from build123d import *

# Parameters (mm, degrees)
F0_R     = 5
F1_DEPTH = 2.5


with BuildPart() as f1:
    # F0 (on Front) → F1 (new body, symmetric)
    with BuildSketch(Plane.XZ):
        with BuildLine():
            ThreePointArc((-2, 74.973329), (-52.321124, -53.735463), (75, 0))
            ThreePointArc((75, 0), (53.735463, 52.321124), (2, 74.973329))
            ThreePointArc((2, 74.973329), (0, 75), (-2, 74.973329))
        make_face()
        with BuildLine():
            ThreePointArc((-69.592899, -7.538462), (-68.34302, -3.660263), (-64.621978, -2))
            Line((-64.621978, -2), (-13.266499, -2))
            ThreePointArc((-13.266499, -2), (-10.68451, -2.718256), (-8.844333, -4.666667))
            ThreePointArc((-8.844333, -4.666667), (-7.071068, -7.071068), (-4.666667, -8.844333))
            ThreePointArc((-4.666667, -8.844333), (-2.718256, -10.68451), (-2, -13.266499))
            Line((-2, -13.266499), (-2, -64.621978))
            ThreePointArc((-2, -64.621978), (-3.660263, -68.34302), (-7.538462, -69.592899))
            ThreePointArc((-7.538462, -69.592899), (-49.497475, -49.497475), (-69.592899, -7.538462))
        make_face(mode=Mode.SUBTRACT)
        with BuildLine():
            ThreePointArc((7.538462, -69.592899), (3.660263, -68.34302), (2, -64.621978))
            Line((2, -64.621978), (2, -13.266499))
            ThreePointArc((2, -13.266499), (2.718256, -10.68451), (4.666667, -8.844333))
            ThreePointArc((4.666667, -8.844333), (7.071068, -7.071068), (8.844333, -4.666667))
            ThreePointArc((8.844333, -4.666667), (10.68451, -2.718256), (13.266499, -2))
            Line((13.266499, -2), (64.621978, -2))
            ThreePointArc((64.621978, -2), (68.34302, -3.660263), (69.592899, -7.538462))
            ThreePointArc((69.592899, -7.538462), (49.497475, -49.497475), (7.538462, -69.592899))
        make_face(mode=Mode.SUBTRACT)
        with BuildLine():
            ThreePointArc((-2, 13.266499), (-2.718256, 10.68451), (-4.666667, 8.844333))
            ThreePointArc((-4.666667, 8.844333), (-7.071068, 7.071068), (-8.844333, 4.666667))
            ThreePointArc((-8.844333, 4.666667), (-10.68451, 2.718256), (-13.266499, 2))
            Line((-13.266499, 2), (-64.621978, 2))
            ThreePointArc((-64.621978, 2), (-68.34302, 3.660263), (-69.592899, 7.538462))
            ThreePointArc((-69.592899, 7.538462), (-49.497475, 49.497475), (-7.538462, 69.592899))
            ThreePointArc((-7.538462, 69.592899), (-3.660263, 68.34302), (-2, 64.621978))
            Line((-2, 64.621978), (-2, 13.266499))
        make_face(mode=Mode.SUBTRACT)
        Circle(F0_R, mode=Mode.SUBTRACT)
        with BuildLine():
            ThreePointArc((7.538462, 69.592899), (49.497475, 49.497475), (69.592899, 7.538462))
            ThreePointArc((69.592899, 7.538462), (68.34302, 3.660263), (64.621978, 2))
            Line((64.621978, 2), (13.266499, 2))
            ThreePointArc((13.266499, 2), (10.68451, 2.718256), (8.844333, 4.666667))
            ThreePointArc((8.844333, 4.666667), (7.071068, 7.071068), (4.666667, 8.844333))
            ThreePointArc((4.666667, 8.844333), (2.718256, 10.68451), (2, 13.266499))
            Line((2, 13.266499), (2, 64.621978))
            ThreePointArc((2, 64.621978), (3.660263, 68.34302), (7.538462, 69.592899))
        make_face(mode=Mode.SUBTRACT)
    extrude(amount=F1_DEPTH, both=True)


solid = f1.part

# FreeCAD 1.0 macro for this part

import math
import FreeCAD as App
import Part
import Sketcher
from FreeCAD import Vector
Q = App.Units.Quantity

doc = App.newDocument("Part")
body = doc.addObject("PartDesign::Body", "Body")

# Sketch on XZ plane
sketch1 = body.newObject("Sketcher::SketchObject", "Sketch")
sketch1.AttachmentSupport = (doc.getObject("XZ_Plane"), [""])
sketch1.MapMode = "FlatFace"
sketch1.addGeometry([
    Part.ArcOfCircle(Part.Circle(Vector(0, 0, 0), Vector(0, 0, 1), 75), math.radians(91.528068), math.radians(360)),  # 0
    Part.ArcOfCircle(Part.Circle(Vector(-0.000001, 0, 0), Vector(0, 0, 1), 75.000001), math.radians(0), math.radians(88.471931)),  # 1
    Part.ArcOfCircle(Part.Circle(Vector(0, -0.00115, 0), Vector(0, 0, 1), 75.00115), math.radians(88.471955), math.radians(91.528045)),  # 2
    Part.ArcOfCircle(Part.Circle(Vector(-0.000001, -0.000001, 0), Vector(0, 0, 1), 69.999998), math.radians(-173.817696), math.radians(-96.182304)),  # 3
    Part.ArcOfCircle(Part.Circle(Vector(-64.621977, -7, 0), Vector(0, 0, 1), 5), math.radians(90.000006), math.radians(186.182307)),  # 4
    Part.LineSegment(Vector(-64.621978, -2, 0), Vector(-13.266499, -2, 0)),  # 5
    Part.ArcOfCircle(Part.Circle(Vector(-13.266499, -6.999999, 0), Vector(0, 0, 1), 4.999999), math.radians(27.818128), math.radians(90.000001)),  # 6
    Part.ArcOfCircle(Part.Circle(Vector(0.000001, 0.000001, 0), Vector(0, 0, 1), 10.000002), math.radians(-152.181856), math.radians(-117.818144)),  # 7
    Part.ArcOfCircle(Part.Circle(Vector(-6.999999, -13.266499, 0), Vector(0, 0, 1), 4.999999), math.radians(-0.000001), math.radians(62.181872)),  # 8
    Part.LineSegment(Vector(-2, -13.266499, 0), Vector(-2, -64.621978, 0)),  # 9
    Part.ArcOfCircle(Part.Circle(Vector(-7, -64.621977, 0), Vector(0, 0, 1), 5), math.radians(-96.182307), math.radians(-0.000006)),  # 10
    Part.ArcOfCircle(Part.Circle(Vector(0.000001, -0.000001, 0), Vector(0, 0, 1), 69.999998), math.radians(-83.817696), math.radians(-6.182304)),  # 11
    Part.ArcOfCircle(Part.Circle(Vector(7, -64.621977, 0), Vector(0, 0, 1), 5), math.radians(-179.999994), math.radians(-83.817693)),  # 12
    Part.LineSegment(Vector(2, -64.621978, 0), Vector(2, -13.266499, 0)),  # 13
    Part.ArcOfCircle(Part.Circle(Vector(6.999999, -13.266499, 0), Vector(0, 0, 1), 4.999999), math.radians(117.818128), math.radians(180.000001)),  # 14
    Part.ArcOfCircle(Part.Circle(Vector(-0.000001, 0.000001, 0), Vector(0, 0, 1), 10.000002), math.radians(-62.181856), math.radians(-27.818144)),  # 15
    Part.ArcOfCircle(Part.Circle(Vector(13.266499, -6.999999, 0), Vector(0, 0, 1), 4.999999), math.radians(89.999999), math.radians(152.181872)),  # 16
    Part.LineSegment(Vector(13.266499, -2, 0), Vector(64.621978, -2, 0)),  # 17
    Part.ArcOfCircle(Part.Circle(Vector(64.621977, -7, 0), Vector(0, 0, 1), 5), math.radians(-6.182307), math.radians(89.999994)),  # 18
    Part.LineSegment(Vector(-2, 64.621978, 0), Vector(-2, 13.266499, 0)),  # 19
    Part.ArcOfCircle(Part.Circle(Vector(-6.999999, 13.266499, 0), Vector(0, 0, 1), 4.999999), math.radians(-62.181872), math.radians(0.000001)),  # 20
    Part.ArcOfCircle(Part.Circle(Vector(0.000001, -0.000001, 0), Vector(0, 0, 1), 10.000002), math.radians(117.818144), math.radians(152.181856)),  # 21
    Part.ArcOfCircle(Part.Circle(Vector(-13.266499, 6.999999, 0), Vector(0, 0, 1), 4.999999), math.radians(-90.000001), math.radians(-27.818128)),  # 22
    Part.LineSegment(Vector(-13.266499, 2, 0), Vector(-64.621978, 2, 0)),  # 23
    Part.ArcOfCircle(Part.Circle(Vector(-64.621977, 7, 0), Vector(0, 0, 1), 5), math.radians(173.817693), math.radians(269.999994)),  # 24
    Part.ArcOfCircle(Part.Circle(Vector(-0.000001, 0.000001, 0), Vector(0, 0, 1), 69.999998), math.radians(96.182304), math.radians(173.817696)),  # 25
    Part.ArcOfCircle(Part.Circle(Vector(-7, 64.621977, 0), Vector(0, 0, 1), 5), math.radians(0.000006), math.radians(96.182307)),  # 26
    Part.Circle(Vector(0, 0, 0), Vector(0, 0, 1), 5),  # 27
    Part.ArcOfCircle(Part.Circle(Vector(7, 64.621977, 0), Vector(0, 0, 1), 5), math.radians(83.817693), math.radians(179.999994)),  # 28
    Part.ArcOfCircle(Part.Circle(Vector(0.000001, 0.000001, 0), Vector(0, 0, 1), 69.999998), math.radians(6.182304), math.radians(83.817696)),  # 29
    Part.ArcOfCircle(Part.Circle(Vector(64.621977, 7, 0), Vector(0, 0, 1), 5), math.radians(-89.999994), math.radians(6.182307)),  # 30
    Part.LineSegment(Vector(64.621978, 2, 0), Vector(13.266499, 2, 0)),  # 31
    Part.ArcOfCircle(Part.Circle(Vector(13.266499, 6.999999, 0), Vector(0, 0, 1), 4.999999), math.radians(-152.181872), math.radians(-89.999999)),  # 32
    Part.ArcOfCircle(Part.Circle(Vector(-0.000001, -0.000001, 0), Vector(0, 0, 1), 10.000002), math.radians(27.818144), math.radians(62.181856)),  # 33
    Part.ArcOfCircle(Part.Circle(Vector(6.999999, 13.266499, 0), Vector(0, 0, 1), 4.999999), math.radians(179.999999), math.radians(242.181872)),  # 34
    Part.LineSegment(Vector(2, 13.266499, 0), Vector(2, 64.621978, 0)),  # 35
], False)
sketch1.addConstraint([
    Sketcher.Constraint("Coincident", 0, 2, 1, 1),
    Sketcher.Constraint("Coincident", 1, 2, 2, 1),
    Sketcher.Constraint("Coincident", 2, 2, 0, 1),
    Sketcher.Constraint("Coincident", 3, 1, 4, 2),
    Sketcher.Constraint("Coincident", 4, 1, 5, 1),
    Sketcher.Constraint("Coincident", 5, 2, 6, 2),
    Sketcher.Constraint("Coincident", 6, 1, 7, 1),
    Sketcher.Constraint("Coincident", 7, 2, 8, 2),
    Sketcher.Constraint("Coincident", 8, 1, 9, 1),
    Sketcher.Constraint("Coincident", 9, 2, 10, 2),
    Sketcher.Constraint("Coincident", 10, 1, 3, 2),
    Sketcher.Constraint("Coincident", 11, 1, 12, 2),
    Sketcher.Constraint("Coincident", 12, 1, 13, 1),
    Sketcher.Constraint("Coincident", 13, 2, 14, 2),
    Sketcher.Constraint("Coincident", 14, 1, 15, 1),
    Sketcher.Constraint("Coincident", 15, 2, 16, 2),
    Sketcher.Constraint("Coincident", 16, 1, 17, 1),
    Sketcher.Constraint("Coincident", 17, 2, 18, 2),
    Sketcher.Constraint("Coincident", 18, 1, 11, 2),
    Sketcher.Constraint("Coincident", 19, 2, 20, 2),
    Sketcher.Constraint("Coincident", 20, 1, 21, 1),
    Sketcher.Constraint("Coincident", 21, 2, 22, 2),
    Sketcher.Constraint("Coincident", 22, 1, 23, 1),
    Sketcher.Constraint("Coincident", 23, 2, 24, 2),
    Sketcher.Constraint("Coincident", 24, 1, 25, 2),
    Sketcher.Constraint("Coincident", 25, 1, 26, 2),
    Sketcher.Constraint("Coincident", 26, 1, 19, 1),
    Sketcher.Constraint("Coincident", 28, 1, 29, 2),
    Sketcher.Constraint("Coincident", 29, 1, 30, 2),
    Sketcher.Constraint("Coincident", 30, 1, 31, 1),
    Sketcher.Constraint("Coincident", 31, 2, 32, 2),
    Sketcher.Constraint("Coincident", 32, 1, 33, 1),
    Sketcher.Constraint("Coincident", 33, 2, 34, 2),
    Sketcher.Constraint("Coincident", 34, 1, 35, 1),
    Sketcher.Constraint("Coincident", 35, 2, 28, 2),
    Sketcher.Constraint("Horizontal", 5),
    Sketcher.Constraint("Vertical", 9),
    Sketcher.Constraint("Vertical", 13),
    Sketcher.Constraint("Horizontal", 17),
    Sketcher.Constraint("Vertical", 19),
    Sketcher.Constraint("Horizontal", 23),
    Sketcher.Constraint("Horizontal", 31),
    Sketcher.Constraint("Vertical", 35),
    Sketcher.Constraint("Coincident", 0, 3, -1, 1),
    Sketcher.Constraint("Coincident", 1, 3, -1, 1),
    Sketcher.Constraint("Coincident", 3, 3, -1, 1),
    Sketcher.Constraint("Coincident", 7, 3, -1, 1),
    Sketcher.Constraint("Coincident", 11, 3, -1, 1),
    Sketcher.Constraint("Coincident", 15, 3, -1, 1),
    Sketcher.Constraint("Coincident", 21, 3, -1, 1),
    Sketcher.Constraint("Coincident", 25, 3, -1, 1),
    Sketcher.Constraint("Coincident", 27, 3, -1, 1),
    Sketcher.Constraint("Coincident", 29, 3, -1, 1),
    Sketcher.Constraint("Coincident", 33, 3, -1, 1),
    Sketcher.Constraint("PointOnObject", 0, 2, -1),
    Sketcher.Constraint("Diameter", 27, Q("10 mm")),
    Sketcher.Constraint("Radius", 0, Q("75 mm")),
    Sketcher.Constraint("Radius", 3, Q("69.999998 mm")),
    Sketcher.Constraint("Radius", 4, Q("5 mm")),
    Sketcher.Constraint("Radius", 6, Q("4.999999 mm")),
    Sketcher.Constraint("Radius", 8, Q("4.999999 mm")),
    Sketcher.Constraint("Radius", 10, Q("5 mm")),
    Sketcher.Constraint("Radius", 11, Q("69.999998 mm")),
    Sketcher.Constraint("Radius", 12, Q("5 mm")),
    Sketcher.Constraint("Radius", 14, Q("4.999999 mm")),
    Sketcher.Constraint("Radius", 16, Q("4.999999 mm")),
    Sketcher.Constraint("Radius", 18, Q("5 mm")),
    Sketcher.Constraint("Radius", 20, Q("4.999999 mm")),
    Sketcher.Constraint("Radius", 22, Q("4.999999 mm")),
    Sketcher.Constraint("Radius", 24, Q("5 mm")),
    Sketcher.Constraint("Radius", 25, Q("69.999998 mm")),
    Sketcher.Constraint("Radius", 26, Q("5 mm")),
    Sketcher.Constraint("Radius", 28, Q("5 mm")),
    Sketcher.Constraint("Radius", 29, Q("69.999998 mm")),
    Sketcher.Constraint("Radius", 30, Q("5 mm")),
    Sketcher.Constraint("Radius", 32, Q("4.999999 mm")),
    Sketcher.Constraint("Radius", 34, Q("4.999999 mm")),
    Sketcher.Constraint("DistanceY", 4, 3, -1, 1, Q("7 mm")),
    Sketcher.Constraint("DistanceX", 8, 3, -1, 1, Q("6.999999 mm")),
    Sketcher.Constraint("DistanceX", -1, 1, 12, 3, Q("7 mm")),
    Sketcher.Constraint("DistanceY", 16, 3, -1, 1, Q("6.999999 mm")),
    Sketcher.Constraint("DistanceX", 20, 3, -1, 1, Q("6.999999 mm")),
    Sketcher.Constraint("DistanceY", -1, 1, 22, 3, Q("6.999999 mm")),
    Sketcher.Constraint("DistanceX", -1, 1, 28, 3, Q("7 mm")),
    Sketcher.Constraint("DistanceY", -1, 1, 30, 3, Q("7 mm")),
    Sketcher.Constraint("DistanceX", -1, 1, 1, 2, Q("2 mm")),
    Sketcher.Constraint("DistanceX", 2, 2, -1, 1, Q("2 mm")),
    Sketcher.Constraint("Radius", 2, Q("75.00115 mm")),
    Sketcher.Constraint("Radius", 7, Q("10.000002 mm")),
    Sketcher.Constraint("Radius", 15, Q("10.000002 mm")),
    Sketcher.Constraint("Radius", 21, Q("10.000002 mm")),
    Sketcher.Constraint("Radius", 33, Q("10.000002 mm")),
    Sketcher.Constraint("DistanceX", 5, 1, 5, 2, Q("51.355479 mm")),
    Sketcher.Constraint("DistanceX", 17, 1, 17, 2, Q("51.355479 mm")),
    Sketcher.Constraint("DistanceX", 23, 2, 23, 1, Q("51.355479 mm")),
    Sketcher.Constraint("DistanceX", 31, 2, 31, 1, Q("51.355479 mm")),
    Sketcher.Constraint("DistanceY", 9, 2, 9, 1, Q("51.355479 mm")),
    Sketcher.Constraint("DistanceY", 13, 1, 13, 2, Q("51.355479 mm")),
    Sketcher.Constraint("DistanceY", 19, 2, 19, 1, Q("51.355479 mm")),
    Sketcher.Constraint("DistanceY", 35, 1, 35, 2, Q("51.355479 mm")),
    Sketcher.Constraint("DistanceX", 3, 1, -1, 1, Q("69.592899 mm")),
    Sketcher.Constraint("DistanceX", 5, 2, -1, 1, Q("13.266499 mm")),
    Sketcher.Constraint("DistanceY", 8, 1, -1, 1, Q("13.266499 mm")),
    Sketcher.Constraint("DistanceY", 10, 1, -1, 1, Q("69.592899 mm")),
    Sketcher.Constraint("DistanceY", 11, 1, -1, 1, Q("69.592899 mm")),
    Sketcher.Constraint("DistanceY", 13, 2, -1, 1, Q("13.266499 mm")),
    Sketcher.Constraint("DistanceX", -1, 1, 16, 1, Q("13.266499 mm")),
    Sketcher.Constraint("DistanceX", -1, 1, 18, 1, Q("69.592899 mm")),
    Sketcher.Constraint("DistanceY", -1, 1, 19, 2, Q("13.266499 mm")),
    Sketcher.Constraint("DistanceX", 22, 1, -1, 1, Q("13.266499 mm")),
    Sketcher.Constraint("DistanceX", 24, 1, -1, 1, Q("69.592899 mm")),
    Sketcher.Constraint("DistanceY", -1, 1, 25, 1, Q("69.592899 mm")),
    Sketcher.Constraint("DistanceY", -1, 1, 28, 1, Q("69.592899 mm")),
    Sketcher.Constraint("DistanceX", -1, 1, 29, 1, Q("69.592899 mm")),
    Sketcher.Constraint("DistanceX", -1, 1, 31, 2, Q("13.266499 mm")),
    Sketcher.Constraint("DistanceY", -1, 1, 34, 1, Q("13.266499 mm")),
    Sketcher.Constraint("DistanceX", 6, 1, -1, 1, Q("8.844333 mm")),
    Sketcher.Constraint("DistanceX", 7, 2, -1, 1, Q("4.666667 mm")),
    Sketcher.Constraint("DistanceX", -1, 1, 14, 1, Q("4.666667 mm")),
    Sketcher.Constraint("DistanceX", -1, 1, 15, 2, Q("8.844333 mm")),
    Sketcher.Constraint("DistanceX", 20, 1, -1, 1, Q("4.666667 mm")),
    Sketcher.Constraint("DistanceX", 21, 2, -1, 1, Q("8.844333 mm")),
    Sketcher.Constraint("DistanceX", -1, 1, 32, 1, Q("8.844333 mm")),
    Sketcher.Constraint("DistanceX", -1, 1, 33, 2, Q("4.666667 mm")),
])
pad1 = body.newObject("PartDesign::Pad", "Pad")
pad1.Profile = sketch1
pad1.Length = 5
pad1.Midplane = True

doc.recompute()
